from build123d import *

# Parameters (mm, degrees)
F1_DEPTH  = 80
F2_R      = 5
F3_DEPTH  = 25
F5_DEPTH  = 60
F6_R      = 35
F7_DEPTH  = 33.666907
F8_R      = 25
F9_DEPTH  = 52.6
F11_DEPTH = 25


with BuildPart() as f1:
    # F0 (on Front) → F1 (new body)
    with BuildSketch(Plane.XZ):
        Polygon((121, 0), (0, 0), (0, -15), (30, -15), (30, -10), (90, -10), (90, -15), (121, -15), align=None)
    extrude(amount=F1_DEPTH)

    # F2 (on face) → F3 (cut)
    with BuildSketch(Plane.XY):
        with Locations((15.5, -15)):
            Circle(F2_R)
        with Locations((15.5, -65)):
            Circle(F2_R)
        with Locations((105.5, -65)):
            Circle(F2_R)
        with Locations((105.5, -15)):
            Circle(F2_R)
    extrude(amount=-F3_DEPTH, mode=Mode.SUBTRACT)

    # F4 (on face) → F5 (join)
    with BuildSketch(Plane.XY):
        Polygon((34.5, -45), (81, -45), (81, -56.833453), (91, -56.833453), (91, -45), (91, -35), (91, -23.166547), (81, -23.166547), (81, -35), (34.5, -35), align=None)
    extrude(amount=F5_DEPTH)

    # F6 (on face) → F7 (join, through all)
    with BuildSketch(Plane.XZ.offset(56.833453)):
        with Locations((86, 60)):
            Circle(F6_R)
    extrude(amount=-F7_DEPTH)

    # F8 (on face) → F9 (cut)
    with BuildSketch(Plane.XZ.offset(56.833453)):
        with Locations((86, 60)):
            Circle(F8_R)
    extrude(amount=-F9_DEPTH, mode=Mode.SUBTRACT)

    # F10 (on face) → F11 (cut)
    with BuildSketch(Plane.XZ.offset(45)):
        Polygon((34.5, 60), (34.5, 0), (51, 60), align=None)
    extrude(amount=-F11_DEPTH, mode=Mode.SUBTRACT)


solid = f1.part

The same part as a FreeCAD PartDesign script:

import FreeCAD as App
import Part
import Sketcher
from FreeCAD import Vector
Q = App.Units.Quantity

doc = App.newDocument("Part")
body = doc.addObject("PartDesign::Body", "Body")

# Sketch on XZ plane
sketch1 = body.newObject("Sketcher::SketchObject", "Sketch")
sketch1.AttachmentSupport = (doc.getObject("XZ_Plane"), [""])
sketch1.MapMode = "FlatFace"
sketch1.addGeometry(Part.LineSegment(Vector(121, 0, 0), Vector(0, 0, 0)), False)
sketch1.addGeometry(Part.LineSegment(Vector(0, 0, 0), Vector(0, -15, 0)), False)
sketch1.addGeometry(Part.LineSegment(Vector(0, -15, 0), Vector(30, -15, 0)), False)
sketch1.addGeometry(Part.LineSegment(Vector(30, -15, 0), Vector(30, -10, 0)), False)
sketch1.addGeometry(Part.LineSegment(Vector(30, -10, 0), Vector(90, -10, 0)), False)
sketch1.addGeometry(Part.LineSegment(Vector(90, -10, 0), Vector(90, -15, 0)), False)
sketch1.addGeometry(Part.LineSegment(Vector(90, -15, 0), Vector(121, -15, 0)), False)
sketch1.addGeometry(Part.LineSegment(Vector(121, -15, 0), Vector(121, 0, 0)), False)
sketch1.addConstraint(Sketcher.Constraint("Coincident", 0, 2, 1, 1))
sketch1.addConstraint(Sketcher.Constraint("Coincident", 1, 2, 2, 1))
sketch1.addConstraint(Sketcher.Constraint("Coincident", 2, 2, 3, 1))
sketch1.addConstraint(Sketcher.Constraint("Coincident", 3, 2, 4, 1))
sketch1.addConstraint(Sketcher.Constraint("Coincident", 4, 2, 5, 1))
sketch1.addConstraint(Sketcher.Constraint("Coincident", 5, 2, 6, 1))
sketch1.addConstraint(Sketcher.Constraint("Coincident", 6, 2, 7, 1))
sketch1.addConstraint(Sketcher.Constraint("Coincident", 7, 2, 0, 1))
sketch1.addConstraint(Sketcher.Constraint("Horizontal", 0))
sketch1.addConstraint(Sketcher.Constraint("Vertical", 1))
sketch1.addConstraint(Sketcher.Constraint("Horizontal", 2))
sketch1.addConstraint(Sketcher.Constraint("Vertical", 3))
sketch1.addConstraint(Sketcher.Constraint("Horizontal", 4))
sketch1.addConstraint(Sketcher.Constraint("Vertical", 5))
sketch1.addConstraint(Sketcher.Constraint("Horizontal", 6))
sketch1.addConstraint(Sketcher.Constraint("Vertical", 7))
sketch1.addConstraint(Sketcher.Constraint("Coincident", 0, 2, -1, 1))
sketch1.addConstraint(Sketcher.Constraint("Horizontal", 2, 2, 5, 2))
sketch1.addConstraint(Sketcher.Constraint("DistanceX", 0, 2, 0, 1, Q("121 mm")))
sketch1.addConstraint(Sketcher.Constraint("DistanceX", 2, 1, 2, 2, Q("30 mm")))
sketch1.addConstraint(Sketcher.Constraint("DistanceX", 4, 1, 4, 2, Q("60 mm")))
sketch1.addConstraint(Sketcher.Constraint("DistanceY", 1, 2, 1, 1, Q("15 mm")))
sketch1.addConstraint(Sketcher.Constraint("DistanceY", 3, 1, 3, 2, Q("5 mm")))
pad1 = body.newObject("PartDesign::Pad", "Pad")
pad1.Profile = sketch1
pad1.Length = 80

# Sketch on XY plane
sketch2 = body.newObject("Sketcher::SketchObject", "Sketch001")
sketch2.AttachmentSupport = (doc.getObject("XY_Plane"), [""])
sketch2.MapMode = "FlatFace"
sketch2.addGeometry(Part.Circle(Vector(15.5, -15, 0), Vector(0, 0, 1), 5), False)
sketch2.addGeometry(Part.Circle(Vector(15.5, -65, 0), Vector(0, 0, 1), 5), False)
sketch2.addGeometry(Part.Circle(Vector(105.5, -65, 0), Vector(0, 0, 1), 5), False)
sketch2.addGeometry(Part.Circle(Vector(105.5, -15, 0), Vector(0, 0, 1), 5), False)
sketch2.addConstraint(Sketcher.Constraint("Equal", 0, 1))
sketch2.addConstraint(Sketcher.Constraint("Equal", 1, 2))
sketch2.addConstraint(Sketcher.Constraint("Equal", 2, 3))
sketch2.addConstraint(Sketcher.Constraint("Horizontal", 1, 3, 2, 3))
sketch2.addConstraint(Sketcher.Constraint("Horizontal", 0, 3, 3, 3))
sketch2.addConstraint(Sketcher.Constraint("Vertical", 0, 3, 1, 3))
sketch2.addConstraint(Sketcher.Constraint("Vertical", 2, 3, 3, 3))
sketch2.addConstraint(Sketcher.Constraint("Diameter", 0, Q("10 mm")))
sketch2.addConstraint(Sketcher.Constraint("DistanceY", 0, 3, -1, 1, Q("15 mm")))
sketch2.addConstraint(Sketcher.Constraint("DistanceY", 1, 3, -1, 1, Q("65 mm")))
sketch2.addConstraint(Sketcher.Constraint("DistanceX", 1, 3, 2, 3, Q("90 mm")))
sketch2.addConstraint(Sketcher.Constraint("DistanceX", -1, 1, 0, 3, Q("15.5 mm")))
pocket1 = body.newObject("PartDesign::Pocket", "Pocket")
pocket1.Profile = sketch2
pocket1.Length = 25

# Sketch on XY plane
sketch3 = body.newObject("Sketcher::SketchObject", "Sketch002")
sketch3.AttachmentSupport = (doc.getObject("XY_Plane"), [""])
sketch3.MapMode = "FlatFace"
sketch3.addGeometry(Part.LineSegment(Vector(34.5, -45, 0), Vector(81, -45, 0)), False)
sketch3.addGeometry(Part.LineSegment(Vector(81, -45, 0), Vector(81, -56.833453, 0)), False)
sketch3.addGeometry(Part.LineSegment(Vector(81, -56.833453, 0), Vector(91, -56.833453, 0)), False)
sketch3.addGeometry(Part.LineSegment(Vector(91, -56.833453, 0), Vector(91, -23.166547, 0)), False)
sketch3.addGeometry(Part.LineSegment(Vector(91, -23.166547, 0), Vector(81, -23.166547, 0)), False)
sketch3.addGeometry(Part.LineSegment(Vector(81, -23.166547, 0), Vector(81, -35, 0)), False)
sketch3.addGeometry(Part.LineSegment(Vector(81, -35, 0), Vector(34.5, -35, 0)), False)
sketch3.addGeometry(Part.LineSegment(Vector(34.5, -35, 0), Vector(34.5, -45, 0)), False)
sketch3.addConstraint(Sketcher.Constraint("Coincident", 0, 2, 1, 1))
sketch3.addConstraint(Sketcher.Constraint("Coincident", 1, 2, 2, 1))
sketch3.addConstraint(Sketcher.Constraint("Coincident", 2, 2, 3, 1))
sketch3.addConstraint(Sketcher.Constraint("Coincident", 3, 2, 4, 1))
sketch3.addConstraint(Sketcher.Constraint("Coincident", 4, 2, 5, 1))
sketch3.addConstraint(Sketcher.Constraint("Coincident", 5, 2, 6, 1))
sketch3.addConstraint(Sketcher.Constraint("Coincident", 6, 2, 7, 1))
sketch3.addConstraint(Sketcher.Constraint("Coincident", 7, 2, 0, 1))
sketch3.addConstraint(Sketcher.Constraint("Horizontal", 0))
sketch3.addConstraint(Sketcher.Constraint("Vertical", 1))
sketch3.addConstraint(Sketcher.Constraint("Horizontal", 2))
sketch3.addConstraint(Sketcher.Constraint("Vertical", 3))
sketch3.addConstraint(Sketcher.Constraint("Horizontal", 4))
sketch3.addConstraint(Sketcher.Constraint("Vertical", 5))
sketch3.addConstraint(Sketcher.Constraint("Horizontal", 6))
sketch3.addConstraint(Sketcher.Constraint("Vertical", 7))
sketch3.addConstraint(Sketcher.Constraint("Vertical", 1, 2, 4, 2))
sketch3.addConstraint(Sketcher.Constraint("Equal", 1, 5))
sketch3.addConstraint(Sketcher.Constraint("Equal", 4, 7))
sketch3.addConstraint(Sketcher.Constraint("DistanceX", 2, 1, 2, 2, Q("10 mm")))
sketch3.addConstraint(Sketcher.Constraint("DistanceX", 0, 1, 0, 2, Q("46.5 mm")))
sketch3.addConstraint(Sketcher.Constraint("DistanceX", -1, 1, 0, 2, Q("81 mm")))
sketch3.addConstraint(Sketcher.Constraint("DistanceY", 0, 2, -1, 1, Q("45 mm")))
sketch3.addConstraint(Sketcher.Constraint("DistanceY", 1, 2, 1, 1, Q("11.833453 mm")))
pad2 = body.newObject("PartDesign::Pad", "Pad001")
pad2.Profile = sketch3
pad2.Length = 60

# Sketch on XZ plane
sketch4 = body.newObject("Sketcher::SketchObject", "Sketch003")
sketch4.AttachmentSupport = (doc.getObject("XZ_Plane"), [""])
sketch4.MapMode = "FlatFace"
sketch4.AttachmentOffset = App.Placement(Vector(0, 0, 56.833453), App.Rotation())
sketch4.addGeometry(Part.Circle(Vector(86, 60, 0), Vector(0, 0, 1), 35), False)
sketch4.addConstraint(Sketcher.Constraint("Diameter", 0, Q("70 mm")))
sketch4.addConstraint(Sketcher.Constraint("DistanceX", -1, 1, 0, 3, Q("86 mm")))
sketch4.addConstraint(Sketcher.Constraint("DistanceY", -1, 1, 0, 3, Q("60 mm")))
pad3 = body.newObject("PartDesign::Pad", "Pad002")
pad3.Profile = sketch4
pad3.Type = "UpToLast"
pad3.Reversed = True

# Sketch on XZ plane
sketch5 = body.newObject("Sketcher::SketchObject", "Sketch004")
sketch5.AttachmentSupport = (doc.getObject("XZ_Plane"), [""])
sketch5.MapMode = "FlatFace"
sketch5.AttachmentOffset = App.Placement(Vector(0, 0, 56.833453), App.Rotation())
sketch5.addGeometry(Part.Circle(Vector(86, 60, 0), Vector(0, 0, 1), 25), False)
sketch5.addConstraint(Sketcher.Constraint("Diameter", 0, Q("50 mm")))
sketch5.addConstraint(Sketcher.Constraint("DistanceX", -1, 1, 0, 3, Q("86 mm")))
sketch5.addConstraint(Sketcher.Constraint("DistanceY", -1, 1, 0, 3, Q("60 mm")))
pocket2 = body.newObject("PartDesign::Pocket", "Pocket001")
pocket2.Profile = sketch5
pocket2.Length = 52.6

# Sketch on XZ plane
sketch6 = body.newObject("Sketcher::SketchObject", "Sketch005")
sketch6.AttachmentSupport = (doc.getObject("XZ_Plane"), [""])
sketch6.MapMode = "FlatFace"
sketch6.AttachmentOffset = App.Placement(Vector(0, 0, 45), App.Rotation())
sketch6.addGeometry(Part.LineSegment(Vector(34.5, 60, 0), Vector(34.5, 0, 0)), False)
sketch6.addGeometry(Part.LineSegment(Vector(34.5, 0, 0), Vector(51, 60, 0)), False)
sketch6.addGeometry(Part.LineSegment(Vector(51, 60, 0), Vector(34.5, 60, 0)), False)
sketch6.addConstraint(Sketcher.Constraint("Coincident", 0, 2, 1, 1))
sketch6.addConstraint(Sketcher.Constraint("Coincident", 1, 2, 2, 1))
sketch6.addConstraint(Sketcher.Constraint("Coincident", 2, 2, 0, 1))
sketch6.addConstraint(Sketcher.Constraint("Vertical", 0))
sketch6.addConstraint(Sketcher.Constraint("Horizontal", 2))
sketch6.addConstraint(Sketcher.Constraint("PointOnObject", 0, 2, -1))
sketch6.addConstraint(Sketcher.Constraint("DistanceY", 0, 2, 0, 1, Q("60 mm")))
sketch6.addConstraint(Sketcher.Constraint("DistanceX", 2, 2, 2, 1, Q("16.5 mm")))
sketch6.addConstraint(Sketcher.Constraint("DistanceX", -1, 1, 1, 2, Q("51 mm")))
pocket3 = body.newObject("PartDesign::Pocket", "Pocket002")
pocket3.Profile = sketch6
pocket3.Length = 25

doc.recompute()
